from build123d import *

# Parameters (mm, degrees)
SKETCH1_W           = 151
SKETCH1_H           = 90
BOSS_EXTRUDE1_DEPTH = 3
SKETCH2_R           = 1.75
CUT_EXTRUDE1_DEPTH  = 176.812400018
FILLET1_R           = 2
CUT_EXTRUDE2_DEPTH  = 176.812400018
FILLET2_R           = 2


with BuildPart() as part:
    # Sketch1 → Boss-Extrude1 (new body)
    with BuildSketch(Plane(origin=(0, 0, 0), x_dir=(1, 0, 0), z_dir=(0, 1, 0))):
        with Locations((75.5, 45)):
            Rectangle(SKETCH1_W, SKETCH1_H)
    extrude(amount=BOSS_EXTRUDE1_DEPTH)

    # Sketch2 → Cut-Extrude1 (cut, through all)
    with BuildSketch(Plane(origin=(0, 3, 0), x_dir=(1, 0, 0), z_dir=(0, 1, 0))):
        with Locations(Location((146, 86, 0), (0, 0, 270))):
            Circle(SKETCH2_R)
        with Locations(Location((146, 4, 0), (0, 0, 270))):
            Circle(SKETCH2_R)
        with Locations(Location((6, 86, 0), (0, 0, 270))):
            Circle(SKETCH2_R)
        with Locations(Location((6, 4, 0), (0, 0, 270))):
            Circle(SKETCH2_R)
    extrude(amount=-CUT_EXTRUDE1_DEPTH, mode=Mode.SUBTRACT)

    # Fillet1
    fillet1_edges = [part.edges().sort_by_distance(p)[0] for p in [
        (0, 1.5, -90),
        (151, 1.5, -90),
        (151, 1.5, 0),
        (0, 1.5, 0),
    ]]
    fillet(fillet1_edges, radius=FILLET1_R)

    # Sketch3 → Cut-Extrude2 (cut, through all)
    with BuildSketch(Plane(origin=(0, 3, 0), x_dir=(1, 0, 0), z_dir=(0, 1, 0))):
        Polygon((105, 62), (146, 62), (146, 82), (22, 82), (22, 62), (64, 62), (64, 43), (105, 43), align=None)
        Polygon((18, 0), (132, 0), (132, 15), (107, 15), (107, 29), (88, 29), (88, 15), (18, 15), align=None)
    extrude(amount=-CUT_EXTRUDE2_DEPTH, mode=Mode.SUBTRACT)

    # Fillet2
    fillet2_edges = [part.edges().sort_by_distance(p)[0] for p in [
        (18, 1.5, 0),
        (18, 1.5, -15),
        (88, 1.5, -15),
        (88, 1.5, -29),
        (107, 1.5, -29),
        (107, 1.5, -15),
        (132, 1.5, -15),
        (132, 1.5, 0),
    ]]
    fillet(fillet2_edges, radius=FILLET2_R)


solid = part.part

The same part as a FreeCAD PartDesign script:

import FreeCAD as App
import Part
import Sketcher

V = App.Vector
Q = App.Units.Quantity


def edges_at(feature, points):
    """Names of the edges that pass closest to the given points."""
    edges = feature.Shape.Edges
    near = lambda p: min(range(len(edges)), key=lambda i: edges[i].distToShape(Part.Vertex(*p))[0])
    return sorted({f"Edge{near(p) + 1}" for p in points})


def add_polygon(sketch, points):
    """Adds a closed chain of lines whose ends are joined by coincident constraints."""
    first, n = sketch.GeometryCount, len(points)
    for a, b in zip(points, points[1:] + points[:1]):
        sketch.addGeometry(Part.LineSegment(App.Vector(*a, 0), App.Vector(*b, 0)), False)
    for i in range(n):
        sketch.addConstraint(Sketcher.Constraint("Coincident", first + i, 2, first + (i + 1) % n, 1))

doc = App.newDocument("Part")
body = doc.addObject("PartDesign::Body", "Body")

sketch1 = body.newObject("Sketcher::SketchObject", "Sketch")
sketch1.AttachmentSupport = (doc.getObject("XZ_Plane"), [""])
sketch1.MapMode = "FlatFace"
add_polygon(sketch1, [(0, -90), (0, 0), (151, 0), (151, -90)])
sketch1.addConstraint([
    Sketcher.Constraint("Vertical", 0),
    Sketcher.Constraint("Horizontal", 1),
    Sketcher.Constraint("Vertical", 2),
    Sketcher.Constraint("Horizontal", 3),
    Sketcher.Constraint("Coincident", 0, 2, -1, 1),
    Sketcher.Constraint("DistanceX", 1, 1, 1, 2, Q("151 mm")),
    Sketcher.Constraint("DistanceY", 0, 1, 0, 2, Q("90 mm")),
])
pad1 = body.newObject("PartDesign::Pad", "Pad")
pad1.Profile = sketch1
pad1.Length = 3
pad1.Reversed = True

sketch2 = body.newObject("Sketcher::SketchObject", "Sketch001")
sketch2.AttachmentSupport = (doc.getObject("XZ_Plane"), [""])
sketch2.MapMode = "FlatFace"
sketch2.AttachmentOffset = App.Placement(V(0, 0, -3), App.Rotation())
sketch2.addGeometry([
    Part.Circle(V(146, -86, 0), V(0, 0, 1), 1.8),
    Part.Circle(V(146, -4, 0), V(0, 0, 1), 1.8),
    Part.Circle(V(6, -86, 0), V(0, 0, 1), 1.8),
    Part.Circle(V(6, -4, 0), V(0, 0, 1), 1.8),
], False)
sketch2.addConstraint([
    Sketcher.Constraint("Equal", 0, 1),
    Sketcher.Constraint("Equal", 1, 2),
    Sketcher.Constraint("Equal", 2, 3),
    Sketcher.Constraint("Horizontal", 0, 3, 2, 3),
    Sketcher.Constraint("Horizontal", 1, 3, 3, 3),
    Sketcher.Constraint("Vertical", 0, 3, 1, 3),
    Sketcher.Constraint("Vertical", 2, 3, 3, 3),
    Sketcher.Constraint("Diameter", 0, Q("3.5 mm")),
    Sketcher.Constraint("DistanceX", -1, 1, 0, 3, Q("146 mm")),
    Sketcher.Constraint("DistanceY", 0, 3, -1, 1, Q("86 mm")),
    Sketcher.Constraint("DistanceY", 1, 3, -1, 1, Q("4 mm")),
    Sketcher.Constraint("DistanceX", -1, 1, 2, 3, Q("6 mm")),
])
pocket1 = body.newObject("PartDesign::Pocket", "Pocket")
pocket1.Profile = sketch2
pocket1.Type = "ThroughAll"
pocket1.Reversed = True
doc.recompute()

fillet = body.newObject("PartDesign::Fillet", "Fillet")
fillet.Base = (pocket1, edges_at(pocket1, [
    (0, 1.5, -90),
    (151, 1.5, -90),
    (151, 1.5, 0),
    (0, 1.5, 0),
]))
fillet.Radius = 2

sketch3 = body.newObject("Sketcher::SketchObject", "Sketch002")
sketch3.AttachmentSupport = (doc.getObject("XZ_Plane"), [""])
sketch3.MapMode = "FlatFace"
sketch3.AttachmentOffset = App.Placement(V(0, 0, -3), App.Rotation())
add_polygon(sketch3, [(105, -62), (146, -62), (146, -82), (22, -82), (22, -62), (64, -62), (64, -43), (105, -43)])
add_polygon(sketch3, [(18, 0), (132, 0), (132, -15), (107, -15), (107, -29), (88, -29), (88, -15), (18, -15)])
sketch3.addConstraint([
    Sketcher.Constraint("Horizontal", 0),
    Sketcher.Constraint("Vertical", 1),
    Sketcher.Constraint("Horizontal", 2),
    Sketcher.Constraint("Vertical", 3),
    Sketcher.Constraint("Horizontal", 4),
    Sketcher.Constraint("Vertical", 5),
    Sketcher.Constraint("Horizontal", 6),
    Sketcher.Constraint("Vertical", 7),
    Sketcher.Constraint("Horizontal", 8),
    Sketcher.Constraint("Vertical", 9),
    Sketcher.Constraint("Horizontal", 10),
    Sketcher.Constraint("Vertical", 11),
    Sketcher.Constraint("Horizontal", 12),
    Sketcher.Constraint("Vertical", 13),
    Sketcher.Constraint("Horizontal", 14),
    Sketcher.Constraint("Vertical", 15),
    Sketcher.Constraint("PointOnObject", 8, 2, -1),
    Sketcher.Constraint("Horizontal", 0, 2, 3, 2),
    Sketcher.Constraint("Horizontal", 10, 2, 13, 2),
    Sketcher.Constraint("Equal", 0, 6),
    Sketcher.Constraint("Equal", 12, 5),
    Sketcher.Constraint("DistanceX", 0, 1, 0, 2, Q("41 mm")),
    Sketcher.Constraint("DistanceX", 2, 2, 2, 1, Q("124 mm")),
    Sketcher.Constraint("DistanceX", 8, 1, 8, 2, Q("114 mm")),
    Sketcher.Constraint("DistanceX", 10, 2, 10, 1, Q("25 mm")),
    Sketcher.Constraint("DistanceX", 12, 2, 12, 1, Q("19 mm")),
    Sketcher.Constraint("DistanceY", 1, 2, 1, 1, Q("20 mm")),
    Sketcher.Constraint("DistanceY", 9, 2, 9, 1, Q("15 mm")),
    Sketcher.Constraint("DistanceY", 11, 2, 11, 1, Q("14 mm")),
    Sketcher.Constraint("DistanceX", -1, 1, 0, 2, Q("146 mm")),
    Sketcher.Constraint("DistanceY", 0, 2, -1, 1, Q("62 mm")),
    Sketcher.Constraint("DistanceX", -1, 1, 8, 2, Q("132 mm")),
])
pocket2 = body.newObject("PartDesign::Pocket", "Pocket001")
pocket2.Profile = sketch3
pocket2.Type = "ThroughAll"
pocket2.Reversed = True
doc.recompute()

fillet2 = body.newObject("PartDesign::Fillet", "Fillet001")
fillet2.Base = (pocket2, edges_at(pocket2, [
    (18, 1.5, 0),
    (18, 1.5, -15),
    (88, 1.5, -15),
    (88, 1.5, -29),
    (107, 1.5, -29),
    (107, 1.5, -15),
    (132, 1.5, -15),
    (132, 1.5, 0),
]))
fillet2.Radius = 2

doc.recompute()
